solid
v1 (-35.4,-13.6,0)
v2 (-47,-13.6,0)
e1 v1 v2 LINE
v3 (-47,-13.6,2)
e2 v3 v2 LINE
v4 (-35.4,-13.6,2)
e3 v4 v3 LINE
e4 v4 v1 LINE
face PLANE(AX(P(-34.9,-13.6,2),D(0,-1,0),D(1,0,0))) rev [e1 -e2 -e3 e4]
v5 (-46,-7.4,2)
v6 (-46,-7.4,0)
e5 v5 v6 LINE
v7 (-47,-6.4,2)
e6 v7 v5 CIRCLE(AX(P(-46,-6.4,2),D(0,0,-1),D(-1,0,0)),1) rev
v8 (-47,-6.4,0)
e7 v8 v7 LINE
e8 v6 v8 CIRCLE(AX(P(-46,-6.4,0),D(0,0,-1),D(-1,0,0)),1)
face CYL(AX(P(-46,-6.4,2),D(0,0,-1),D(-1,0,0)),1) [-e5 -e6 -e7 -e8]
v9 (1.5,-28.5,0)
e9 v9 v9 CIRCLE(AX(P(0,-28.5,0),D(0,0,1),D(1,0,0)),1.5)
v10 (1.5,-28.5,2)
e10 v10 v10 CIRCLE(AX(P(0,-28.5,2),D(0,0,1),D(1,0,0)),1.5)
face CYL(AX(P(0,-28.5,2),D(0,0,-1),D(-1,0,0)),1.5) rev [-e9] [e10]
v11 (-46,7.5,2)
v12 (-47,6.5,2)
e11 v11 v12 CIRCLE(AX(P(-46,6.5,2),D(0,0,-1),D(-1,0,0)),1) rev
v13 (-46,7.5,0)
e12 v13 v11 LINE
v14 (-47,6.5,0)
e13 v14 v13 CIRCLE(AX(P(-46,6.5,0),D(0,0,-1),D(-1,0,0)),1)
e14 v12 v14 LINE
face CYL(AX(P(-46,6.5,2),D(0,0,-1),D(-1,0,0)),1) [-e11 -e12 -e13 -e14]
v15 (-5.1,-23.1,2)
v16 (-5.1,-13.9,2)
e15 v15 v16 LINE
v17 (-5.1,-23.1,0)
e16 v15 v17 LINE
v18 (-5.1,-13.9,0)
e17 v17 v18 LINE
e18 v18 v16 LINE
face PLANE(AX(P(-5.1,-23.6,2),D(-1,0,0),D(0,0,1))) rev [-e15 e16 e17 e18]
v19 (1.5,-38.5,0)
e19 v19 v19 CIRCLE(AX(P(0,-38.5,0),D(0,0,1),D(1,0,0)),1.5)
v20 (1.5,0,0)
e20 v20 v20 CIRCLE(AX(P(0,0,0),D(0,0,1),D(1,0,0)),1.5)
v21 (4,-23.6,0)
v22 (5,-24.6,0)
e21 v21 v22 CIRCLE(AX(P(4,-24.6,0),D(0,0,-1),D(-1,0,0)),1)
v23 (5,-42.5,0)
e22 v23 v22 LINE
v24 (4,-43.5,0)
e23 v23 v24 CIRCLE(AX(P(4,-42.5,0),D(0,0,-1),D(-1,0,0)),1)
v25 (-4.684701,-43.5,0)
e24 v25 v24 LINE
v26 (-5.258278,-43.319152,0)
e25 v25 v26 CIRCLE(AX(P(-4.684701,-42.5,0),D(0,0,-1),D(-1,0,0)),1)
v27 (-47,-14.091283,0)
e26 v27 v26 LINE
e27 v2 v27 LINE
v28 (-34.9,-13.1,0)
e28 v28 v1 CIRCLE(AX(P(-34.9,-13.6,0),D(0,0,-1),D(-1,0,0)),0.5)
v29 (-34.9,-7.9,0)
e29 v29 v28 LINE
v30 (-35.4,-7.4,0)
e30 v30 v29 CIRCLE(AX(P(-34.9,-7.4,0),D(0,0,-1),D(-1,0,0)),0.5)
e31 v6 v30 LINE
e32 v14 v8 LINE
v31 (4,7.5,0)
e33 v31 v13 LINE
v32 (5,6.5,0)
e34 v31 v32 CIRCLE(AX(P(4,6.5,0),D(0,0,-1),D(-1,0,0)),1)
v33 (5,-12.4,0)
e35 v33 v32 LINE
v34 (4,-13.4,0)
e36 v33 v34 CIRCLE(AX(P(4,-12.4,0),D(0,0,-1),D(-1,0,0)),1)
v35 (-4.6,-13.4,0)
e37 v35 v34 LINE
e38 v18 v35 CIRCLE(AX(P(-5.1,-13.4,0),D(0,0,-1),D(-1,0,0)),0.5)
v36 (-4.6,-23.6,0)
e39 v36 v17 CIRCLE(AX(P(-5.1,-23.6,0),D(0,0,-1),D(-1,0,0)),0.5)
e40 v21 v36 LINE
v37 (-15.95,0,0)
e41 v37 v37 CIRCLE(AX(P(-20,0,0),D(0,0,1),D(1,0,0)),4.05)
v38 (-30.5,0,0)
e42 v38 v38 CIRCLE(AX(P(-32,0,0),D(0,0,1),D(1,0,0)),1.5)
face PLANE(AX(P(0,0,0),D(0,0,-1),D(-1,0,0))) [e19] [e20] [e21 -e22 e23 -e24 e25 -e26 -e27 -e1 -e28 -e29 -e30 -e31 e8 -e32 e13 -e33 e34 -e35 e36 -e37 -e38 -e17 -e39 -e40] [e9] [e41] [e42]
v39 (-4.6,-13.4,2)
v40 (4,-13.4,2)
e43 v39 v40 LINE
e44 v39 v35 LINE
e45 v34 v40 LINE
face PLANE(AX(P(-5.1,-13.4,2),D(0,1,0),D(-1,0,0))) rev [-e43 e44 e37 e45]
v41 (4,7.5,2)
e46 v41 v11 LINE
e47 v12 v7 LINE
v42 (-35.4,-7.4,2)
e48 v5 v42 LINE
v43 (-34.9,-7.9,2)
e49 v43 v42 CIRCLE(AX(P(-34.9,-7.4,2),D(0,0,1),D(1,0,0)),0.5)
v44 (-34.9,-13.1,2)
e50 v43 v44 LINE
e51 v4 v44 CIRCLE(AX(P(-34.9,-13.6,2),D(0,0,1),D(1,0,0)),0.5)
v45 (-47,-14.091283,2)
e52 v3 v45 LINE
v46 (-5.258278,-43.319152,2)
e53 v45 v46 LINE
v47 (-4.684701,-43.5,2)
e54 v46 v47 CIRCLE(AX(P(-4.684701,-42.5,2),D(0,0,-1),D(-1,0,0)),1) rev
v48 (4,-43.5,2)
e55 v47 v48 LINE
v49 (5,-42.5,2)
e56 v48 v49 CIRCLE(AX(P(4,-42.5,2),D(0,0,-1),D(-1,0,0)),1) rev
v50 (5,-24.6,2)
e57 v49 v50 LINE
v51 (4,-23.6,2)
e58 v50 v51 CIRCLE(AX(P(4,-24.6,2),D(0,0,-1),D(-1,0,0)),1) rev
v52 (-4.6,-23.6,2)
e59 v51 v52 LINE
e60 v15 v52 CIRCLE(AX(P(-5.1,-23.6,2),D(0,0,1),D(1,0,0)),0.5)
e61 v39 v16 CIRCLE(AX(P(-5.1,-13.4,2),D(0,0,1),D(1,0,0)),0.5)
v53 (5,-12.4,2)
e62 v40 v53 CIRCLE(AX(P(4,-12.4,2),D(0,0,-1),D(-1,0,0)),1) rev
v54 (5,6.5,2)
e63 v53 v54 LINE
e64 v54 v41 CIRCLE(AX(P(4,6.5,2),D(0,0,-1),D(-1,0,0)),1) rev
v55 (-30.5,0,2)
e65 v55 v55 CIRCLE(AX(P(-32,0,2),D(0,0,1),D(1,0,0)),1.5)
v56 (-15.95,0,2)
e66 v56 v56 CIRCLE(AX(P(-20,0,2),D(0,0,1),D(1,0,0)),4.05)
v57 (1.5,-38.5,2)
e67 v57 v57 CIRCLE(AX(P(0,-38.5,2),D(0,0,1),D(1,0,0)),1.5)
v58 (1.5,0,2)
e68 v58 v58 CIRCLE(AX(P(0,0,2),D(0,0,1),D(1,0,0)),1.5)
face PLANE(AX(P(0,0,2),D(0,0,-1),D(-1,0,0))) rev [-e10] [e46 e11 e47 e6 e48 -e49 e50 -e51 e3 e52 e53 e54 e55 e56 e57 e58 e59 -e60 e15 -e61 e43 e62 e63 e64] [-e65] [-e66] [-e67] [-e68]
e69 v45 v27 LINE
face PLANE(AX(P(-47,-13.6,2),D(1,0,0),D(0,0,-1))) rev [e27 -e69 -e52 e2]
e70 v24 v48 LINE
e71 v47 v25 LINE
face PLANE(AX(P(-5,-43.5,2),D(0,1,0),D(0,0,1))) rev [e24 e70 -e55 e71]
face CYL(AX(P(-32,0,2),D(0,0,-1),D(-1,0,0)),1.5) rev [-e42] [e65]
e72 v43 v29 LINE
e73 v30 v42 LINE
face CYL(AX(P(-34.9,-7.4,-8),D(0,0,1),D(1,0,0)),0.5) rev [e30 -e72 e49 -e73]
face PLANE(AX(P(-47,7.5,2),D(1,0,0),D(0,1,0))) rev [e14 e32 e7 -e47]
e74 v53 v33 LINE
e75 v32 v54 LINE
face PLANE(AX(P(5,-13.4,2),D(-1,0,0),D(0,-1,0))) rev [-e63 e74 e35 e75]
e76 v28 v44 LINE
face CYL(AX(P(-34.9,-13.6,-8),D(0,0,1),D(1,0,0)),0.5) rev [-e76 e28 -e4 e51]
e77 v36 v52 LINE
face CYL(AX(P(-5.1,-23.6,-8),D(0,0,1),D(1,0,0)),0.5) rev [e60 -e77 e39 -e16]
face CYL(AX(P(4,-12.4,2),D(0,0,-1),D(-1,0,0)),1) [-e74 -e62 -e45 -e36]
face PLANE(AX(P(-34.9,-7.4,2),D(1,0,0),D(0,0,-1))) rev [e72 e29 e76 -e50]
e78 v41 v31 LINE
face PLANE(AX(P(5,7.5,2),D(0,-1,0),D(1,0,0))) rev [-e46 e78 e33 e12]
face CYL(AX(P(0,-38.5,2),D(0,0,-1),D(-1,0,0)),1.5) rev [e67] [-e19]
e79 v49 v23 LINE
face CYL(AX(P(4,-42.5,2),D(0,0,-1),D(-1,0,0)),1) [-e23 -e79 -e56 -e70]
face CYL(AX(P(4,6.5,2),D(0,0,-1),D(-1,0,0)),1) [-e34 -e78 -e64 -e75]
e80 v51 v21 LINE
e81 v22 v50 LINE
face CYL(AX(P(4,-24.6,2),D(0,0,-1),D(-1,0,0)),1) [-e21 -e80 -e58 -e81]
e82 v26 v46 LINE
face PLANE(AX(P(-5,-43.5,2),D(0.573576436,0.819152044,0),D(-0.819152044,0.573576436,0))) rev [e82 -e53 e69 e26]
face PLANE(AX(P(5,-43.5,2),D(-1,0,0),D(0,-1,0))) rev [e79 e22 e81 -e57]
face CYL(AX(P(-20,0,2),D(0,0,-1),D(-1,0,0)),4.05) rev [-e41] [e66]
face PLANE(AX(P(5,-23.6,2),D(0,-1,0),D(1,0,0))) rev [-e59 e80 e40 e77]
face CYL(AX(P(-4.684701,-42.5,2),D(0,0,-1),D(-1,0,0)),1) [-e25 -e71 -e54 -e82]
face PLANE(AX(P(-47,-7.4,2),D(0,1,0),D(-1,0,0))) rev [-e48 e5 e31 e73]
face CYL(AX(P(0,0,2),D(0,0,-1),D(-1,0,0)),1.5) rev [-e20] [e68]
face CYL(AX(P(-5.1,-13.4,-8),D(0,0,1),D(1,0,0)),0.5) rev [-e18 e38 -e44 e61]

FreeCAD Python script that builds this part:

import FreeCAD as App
import Part
import Sketcher

V = App.Vector
Q = App.Units.Quantity


def edges_at(feature, points):
    """Names of the edges that pass closest to the given points."""
    edges = feature.Shape.Edges
    near = lambda p: min(range(len(edges)), key=lambda i: edges[i].distToShape(Part.Vertex(*p))[0])
    return sorted({f"Edge{near(p) + 1}" for p in points})


def add_polygon(sketch, points):
    """Adds a closed chain of lines whose ends are joined by coincident constraints."""
    first, n = sketch.GeometryCount, len(points)
    for a, b in zip(points, points[1:] + points[:1]):
        sketch.addGeometry(Part.LineSegment(App.Vector(*a, 0), App.Vector(*b, 0)), False)
    for i in range(n):
        sketch.addConstraint(Sketcher.Constraint("Coincident", first + i, 2, first + (i + 1) % n, 1))

doc = App.newDocument("Part")
body = doc.addObject("PartDesign::Body", "Body")

# Sketch on XY plane
sketch1 = doc.addObject("Sketcher::SketchObject", "Sketch")
body.addObject(sketch1)
sketch1.AttachmentSupport = (doc.XY_Plane, [""])
sketch1.MapMode = "FlatFace"
add_polygon(sketch1, [(-5, -43.5), (5, -43.5), (5, -23.6), (-5.1, -23.6), (-5.1, -13.4), (5, -13.4), (5, 7.5), (-47, 7.5), (-47, -7.4), (-34.9, -7.4), (-34.9, -13.6), (-47, -13.6), (-47, -14.09)])  # lines 0-12
sketch1.addGeometry(Part.Circle(V(0, -38.5, 0), V(0, 0, 1), 1.5), False)  # 13
sketch1.addGeometry(Part.Circle(V(0, -28.5, 0), V(0, 0, 1), 1.5), False)  # 14
sketch1.addGeometry(Part.Circle(V(-32, 0, 0), V(0, 0, 1), 1.5), False)  # 15
sketch1.addGeometry(Part.Circle(V(-20, 0, 0), V(0, 0, 1), 4.05), False)  # 16
sketch1.addGeometry(Part.Circle(V(0, 0, 0), V(0, 0, 1), 1.5), False)  # 17
sketch1.addConstraint([
    Sketcher.Constraint("Horizontal", 0),
    Sketcher.Constraint("Vertical", 1),
    Sketcher.Constraint("Horizontal", 2),
    Sketcher.Constraint("Vertical", 3),
    Sketcher.Constraint("Horizontal", 4),
    Sketcher.Constraint("Vertical", 5),
    Sketcher.Constraint("Horizontal", 6),
    Sketcher.Constraint("Vertical", 7),
    Sketcher.Constraint("Horizontal", 8),
    Sketcher.Constraint("Vertical", 9),
    Sketcher.Constraint("Horizontal", 10),
    Sketcher.Constraint("Vertical", 11),
    Sketcher.Constraint("Coincident", 17, 3, -1, 1),
    Sketcher.Constraint("Equal", 13, 14),
    Sketcher.Constraint("Equal", 14, 15),
    Sketcher.Constraint("Equal", 15, 17),
    Sketcher.Constraint("PointOnObject", 13, 3, -2),
    Sketcher.Constraint("PointOnObject", 14, 3, -2),
    Sketcher.Constraint("PointOnObject", 15, 3, -1),
    Sketcher.Constraint("PointOnObject", 16, 3, -1),
    Sketcher.Constraint("Vertical", 1, 2, 4, 2),
    Sketcher.Constraint("Vertical", 7, 2, 10, 2),
    Sketcher.Constraint("Diameter", 13, 3.0),
    Sketcher.Constraint("Diameter", 16, 8.1),
    Sketcher.Constraint("DistanceX", 0, 1, 0, 2, 10.0),
    Sketcher.Constraint("DistanceX", 6, 2, 6, 1, 52.0),
    Sketcher.Constraint("Angle", 12, Q("-35 deg")),
    Sketcher.Constraint("DistanceX", 2, 2, 2, 1, 10.1),
    Sketcher.Constraint("DistanceX", 8, 1, 8, 2, 12.1),
    Sketcher.Constraint("DistanceY", 1, 1, 1, 2, 19.9),
    Sketcher.Constraint("DistanceY", 3, 1, 3, 2, 10.2),
    Sketcher.Constraint("DistanceY", 5, 1, 5, 2, 20.9),
    Sketcher.Constraint("DistanceY", 7, 2, 7, 1, 14.9),
    Sketcher.Constraint("DistanceY", 9, 2, 9, 1, 6.2),
    Sketcher.Constraint("DistanceX", 15, 3, -1, 1, 32.0),
    Sketcher.Constraint("DistanceX", 16, 3, -1, 1, 20.0),
    Sketcher.Constraint("DistanceX", -1, 1, 0, 2, 5.0),
    Sketcher.Constraint("DistanceY", 13, 3, 14, 3, 10.0),
    Sketcher.Constraint("DistanceY", 0, 2, 13, 3, 5.0),
    Sketcher.Constraint("DistanceY", 13, 3, -1, 1, 38.5),
])
pad1 = doc.addObject("PartDesign::Pad", "Pad")
body.addObject(pad1)
pad1.Profile = sketch1
pad1.Length = 2

# Sketch on XY plane
sketch2 = doc.addObject("Sketcher::SketchObject", "Sketch001")
body.addObject(sketch2)
sketch2.AttachmentSupport = (doc.XY_Plane, [""])
sketch2.MapMode = "FlatFace"
sketch2.AttachmentOffset = App.Placement(V(0, 0, 2), App.Rotation())
sketch2.addGeometry([
    Part.Circle(V(-34.9, -7.4, 0), V(0, 0, 1), 0.5),
    Part.Circle(V(-34.9, -13.6, 0), V(0, 0, 1), 0.5),
    Part.Circle(V(-5.1, -13.4, 0), V(0, 0, 1), 0.5),
    Part.Circle(V(-5.1, -23.6, 0), V(0, 0, 1), 0.5),
], False)
sketch2.addConstraint([
    Sketcher.Constraint("Equal", 0, 1),
    Sketcher.Constraint("Equal", 1, 2),
    Sketcher.Constraint("Equal", 2, 3),
    Sketcher.Constraint("Vertical", 0, 3, 1, 3),
    Sketcher.Constraint("Vertical", 2, 3, 3, 3),
    Sketcher.Constraint("Diameter", 0, 1.0),
    Sketcher.Constraint("DistanceY", 2, 3, 0, 3, 6.0),
    Sketcher.Constraint("DistanceY", 3, 3, 1, 3, 10.0),
    Sketcher.Constraint("DistanceX", 0, 3, -1, 1, 34.9),
    Sketcher.Constraint("DistanceY", 0, 3, -1, 1, 7.4),
    Sketcher.Constraint("DistanceY", 1, 3, -1, 1, 13.6),
    Sketcher.Constraint("DistanceX", 2, 3, -1, 1, 5.1),
])
pocket1 = doc.addObject("PartDesign::Pocket", "Pocket")
body.addObject(pocket1)
pocket1.Profile = sketch2
pocket1.Length = 10
doc.recompute()

fillet = doc.addObject("PartDesign::Fillet", "Fillet")
body.addObject(fillet)
fillet.Base = (pocket1, edges_at(pocket1, [
    (-47, -7.4, 1),
    (-47, 7.5, 1),
    (5, 7.5, 1),
    (5, -13.4, 1),
    (5, -23.6, 1),
    (5, -43.5, 1),
    (-5, -43.5, 1),
]))
fillet.Radius = 1

doc.recompute()
